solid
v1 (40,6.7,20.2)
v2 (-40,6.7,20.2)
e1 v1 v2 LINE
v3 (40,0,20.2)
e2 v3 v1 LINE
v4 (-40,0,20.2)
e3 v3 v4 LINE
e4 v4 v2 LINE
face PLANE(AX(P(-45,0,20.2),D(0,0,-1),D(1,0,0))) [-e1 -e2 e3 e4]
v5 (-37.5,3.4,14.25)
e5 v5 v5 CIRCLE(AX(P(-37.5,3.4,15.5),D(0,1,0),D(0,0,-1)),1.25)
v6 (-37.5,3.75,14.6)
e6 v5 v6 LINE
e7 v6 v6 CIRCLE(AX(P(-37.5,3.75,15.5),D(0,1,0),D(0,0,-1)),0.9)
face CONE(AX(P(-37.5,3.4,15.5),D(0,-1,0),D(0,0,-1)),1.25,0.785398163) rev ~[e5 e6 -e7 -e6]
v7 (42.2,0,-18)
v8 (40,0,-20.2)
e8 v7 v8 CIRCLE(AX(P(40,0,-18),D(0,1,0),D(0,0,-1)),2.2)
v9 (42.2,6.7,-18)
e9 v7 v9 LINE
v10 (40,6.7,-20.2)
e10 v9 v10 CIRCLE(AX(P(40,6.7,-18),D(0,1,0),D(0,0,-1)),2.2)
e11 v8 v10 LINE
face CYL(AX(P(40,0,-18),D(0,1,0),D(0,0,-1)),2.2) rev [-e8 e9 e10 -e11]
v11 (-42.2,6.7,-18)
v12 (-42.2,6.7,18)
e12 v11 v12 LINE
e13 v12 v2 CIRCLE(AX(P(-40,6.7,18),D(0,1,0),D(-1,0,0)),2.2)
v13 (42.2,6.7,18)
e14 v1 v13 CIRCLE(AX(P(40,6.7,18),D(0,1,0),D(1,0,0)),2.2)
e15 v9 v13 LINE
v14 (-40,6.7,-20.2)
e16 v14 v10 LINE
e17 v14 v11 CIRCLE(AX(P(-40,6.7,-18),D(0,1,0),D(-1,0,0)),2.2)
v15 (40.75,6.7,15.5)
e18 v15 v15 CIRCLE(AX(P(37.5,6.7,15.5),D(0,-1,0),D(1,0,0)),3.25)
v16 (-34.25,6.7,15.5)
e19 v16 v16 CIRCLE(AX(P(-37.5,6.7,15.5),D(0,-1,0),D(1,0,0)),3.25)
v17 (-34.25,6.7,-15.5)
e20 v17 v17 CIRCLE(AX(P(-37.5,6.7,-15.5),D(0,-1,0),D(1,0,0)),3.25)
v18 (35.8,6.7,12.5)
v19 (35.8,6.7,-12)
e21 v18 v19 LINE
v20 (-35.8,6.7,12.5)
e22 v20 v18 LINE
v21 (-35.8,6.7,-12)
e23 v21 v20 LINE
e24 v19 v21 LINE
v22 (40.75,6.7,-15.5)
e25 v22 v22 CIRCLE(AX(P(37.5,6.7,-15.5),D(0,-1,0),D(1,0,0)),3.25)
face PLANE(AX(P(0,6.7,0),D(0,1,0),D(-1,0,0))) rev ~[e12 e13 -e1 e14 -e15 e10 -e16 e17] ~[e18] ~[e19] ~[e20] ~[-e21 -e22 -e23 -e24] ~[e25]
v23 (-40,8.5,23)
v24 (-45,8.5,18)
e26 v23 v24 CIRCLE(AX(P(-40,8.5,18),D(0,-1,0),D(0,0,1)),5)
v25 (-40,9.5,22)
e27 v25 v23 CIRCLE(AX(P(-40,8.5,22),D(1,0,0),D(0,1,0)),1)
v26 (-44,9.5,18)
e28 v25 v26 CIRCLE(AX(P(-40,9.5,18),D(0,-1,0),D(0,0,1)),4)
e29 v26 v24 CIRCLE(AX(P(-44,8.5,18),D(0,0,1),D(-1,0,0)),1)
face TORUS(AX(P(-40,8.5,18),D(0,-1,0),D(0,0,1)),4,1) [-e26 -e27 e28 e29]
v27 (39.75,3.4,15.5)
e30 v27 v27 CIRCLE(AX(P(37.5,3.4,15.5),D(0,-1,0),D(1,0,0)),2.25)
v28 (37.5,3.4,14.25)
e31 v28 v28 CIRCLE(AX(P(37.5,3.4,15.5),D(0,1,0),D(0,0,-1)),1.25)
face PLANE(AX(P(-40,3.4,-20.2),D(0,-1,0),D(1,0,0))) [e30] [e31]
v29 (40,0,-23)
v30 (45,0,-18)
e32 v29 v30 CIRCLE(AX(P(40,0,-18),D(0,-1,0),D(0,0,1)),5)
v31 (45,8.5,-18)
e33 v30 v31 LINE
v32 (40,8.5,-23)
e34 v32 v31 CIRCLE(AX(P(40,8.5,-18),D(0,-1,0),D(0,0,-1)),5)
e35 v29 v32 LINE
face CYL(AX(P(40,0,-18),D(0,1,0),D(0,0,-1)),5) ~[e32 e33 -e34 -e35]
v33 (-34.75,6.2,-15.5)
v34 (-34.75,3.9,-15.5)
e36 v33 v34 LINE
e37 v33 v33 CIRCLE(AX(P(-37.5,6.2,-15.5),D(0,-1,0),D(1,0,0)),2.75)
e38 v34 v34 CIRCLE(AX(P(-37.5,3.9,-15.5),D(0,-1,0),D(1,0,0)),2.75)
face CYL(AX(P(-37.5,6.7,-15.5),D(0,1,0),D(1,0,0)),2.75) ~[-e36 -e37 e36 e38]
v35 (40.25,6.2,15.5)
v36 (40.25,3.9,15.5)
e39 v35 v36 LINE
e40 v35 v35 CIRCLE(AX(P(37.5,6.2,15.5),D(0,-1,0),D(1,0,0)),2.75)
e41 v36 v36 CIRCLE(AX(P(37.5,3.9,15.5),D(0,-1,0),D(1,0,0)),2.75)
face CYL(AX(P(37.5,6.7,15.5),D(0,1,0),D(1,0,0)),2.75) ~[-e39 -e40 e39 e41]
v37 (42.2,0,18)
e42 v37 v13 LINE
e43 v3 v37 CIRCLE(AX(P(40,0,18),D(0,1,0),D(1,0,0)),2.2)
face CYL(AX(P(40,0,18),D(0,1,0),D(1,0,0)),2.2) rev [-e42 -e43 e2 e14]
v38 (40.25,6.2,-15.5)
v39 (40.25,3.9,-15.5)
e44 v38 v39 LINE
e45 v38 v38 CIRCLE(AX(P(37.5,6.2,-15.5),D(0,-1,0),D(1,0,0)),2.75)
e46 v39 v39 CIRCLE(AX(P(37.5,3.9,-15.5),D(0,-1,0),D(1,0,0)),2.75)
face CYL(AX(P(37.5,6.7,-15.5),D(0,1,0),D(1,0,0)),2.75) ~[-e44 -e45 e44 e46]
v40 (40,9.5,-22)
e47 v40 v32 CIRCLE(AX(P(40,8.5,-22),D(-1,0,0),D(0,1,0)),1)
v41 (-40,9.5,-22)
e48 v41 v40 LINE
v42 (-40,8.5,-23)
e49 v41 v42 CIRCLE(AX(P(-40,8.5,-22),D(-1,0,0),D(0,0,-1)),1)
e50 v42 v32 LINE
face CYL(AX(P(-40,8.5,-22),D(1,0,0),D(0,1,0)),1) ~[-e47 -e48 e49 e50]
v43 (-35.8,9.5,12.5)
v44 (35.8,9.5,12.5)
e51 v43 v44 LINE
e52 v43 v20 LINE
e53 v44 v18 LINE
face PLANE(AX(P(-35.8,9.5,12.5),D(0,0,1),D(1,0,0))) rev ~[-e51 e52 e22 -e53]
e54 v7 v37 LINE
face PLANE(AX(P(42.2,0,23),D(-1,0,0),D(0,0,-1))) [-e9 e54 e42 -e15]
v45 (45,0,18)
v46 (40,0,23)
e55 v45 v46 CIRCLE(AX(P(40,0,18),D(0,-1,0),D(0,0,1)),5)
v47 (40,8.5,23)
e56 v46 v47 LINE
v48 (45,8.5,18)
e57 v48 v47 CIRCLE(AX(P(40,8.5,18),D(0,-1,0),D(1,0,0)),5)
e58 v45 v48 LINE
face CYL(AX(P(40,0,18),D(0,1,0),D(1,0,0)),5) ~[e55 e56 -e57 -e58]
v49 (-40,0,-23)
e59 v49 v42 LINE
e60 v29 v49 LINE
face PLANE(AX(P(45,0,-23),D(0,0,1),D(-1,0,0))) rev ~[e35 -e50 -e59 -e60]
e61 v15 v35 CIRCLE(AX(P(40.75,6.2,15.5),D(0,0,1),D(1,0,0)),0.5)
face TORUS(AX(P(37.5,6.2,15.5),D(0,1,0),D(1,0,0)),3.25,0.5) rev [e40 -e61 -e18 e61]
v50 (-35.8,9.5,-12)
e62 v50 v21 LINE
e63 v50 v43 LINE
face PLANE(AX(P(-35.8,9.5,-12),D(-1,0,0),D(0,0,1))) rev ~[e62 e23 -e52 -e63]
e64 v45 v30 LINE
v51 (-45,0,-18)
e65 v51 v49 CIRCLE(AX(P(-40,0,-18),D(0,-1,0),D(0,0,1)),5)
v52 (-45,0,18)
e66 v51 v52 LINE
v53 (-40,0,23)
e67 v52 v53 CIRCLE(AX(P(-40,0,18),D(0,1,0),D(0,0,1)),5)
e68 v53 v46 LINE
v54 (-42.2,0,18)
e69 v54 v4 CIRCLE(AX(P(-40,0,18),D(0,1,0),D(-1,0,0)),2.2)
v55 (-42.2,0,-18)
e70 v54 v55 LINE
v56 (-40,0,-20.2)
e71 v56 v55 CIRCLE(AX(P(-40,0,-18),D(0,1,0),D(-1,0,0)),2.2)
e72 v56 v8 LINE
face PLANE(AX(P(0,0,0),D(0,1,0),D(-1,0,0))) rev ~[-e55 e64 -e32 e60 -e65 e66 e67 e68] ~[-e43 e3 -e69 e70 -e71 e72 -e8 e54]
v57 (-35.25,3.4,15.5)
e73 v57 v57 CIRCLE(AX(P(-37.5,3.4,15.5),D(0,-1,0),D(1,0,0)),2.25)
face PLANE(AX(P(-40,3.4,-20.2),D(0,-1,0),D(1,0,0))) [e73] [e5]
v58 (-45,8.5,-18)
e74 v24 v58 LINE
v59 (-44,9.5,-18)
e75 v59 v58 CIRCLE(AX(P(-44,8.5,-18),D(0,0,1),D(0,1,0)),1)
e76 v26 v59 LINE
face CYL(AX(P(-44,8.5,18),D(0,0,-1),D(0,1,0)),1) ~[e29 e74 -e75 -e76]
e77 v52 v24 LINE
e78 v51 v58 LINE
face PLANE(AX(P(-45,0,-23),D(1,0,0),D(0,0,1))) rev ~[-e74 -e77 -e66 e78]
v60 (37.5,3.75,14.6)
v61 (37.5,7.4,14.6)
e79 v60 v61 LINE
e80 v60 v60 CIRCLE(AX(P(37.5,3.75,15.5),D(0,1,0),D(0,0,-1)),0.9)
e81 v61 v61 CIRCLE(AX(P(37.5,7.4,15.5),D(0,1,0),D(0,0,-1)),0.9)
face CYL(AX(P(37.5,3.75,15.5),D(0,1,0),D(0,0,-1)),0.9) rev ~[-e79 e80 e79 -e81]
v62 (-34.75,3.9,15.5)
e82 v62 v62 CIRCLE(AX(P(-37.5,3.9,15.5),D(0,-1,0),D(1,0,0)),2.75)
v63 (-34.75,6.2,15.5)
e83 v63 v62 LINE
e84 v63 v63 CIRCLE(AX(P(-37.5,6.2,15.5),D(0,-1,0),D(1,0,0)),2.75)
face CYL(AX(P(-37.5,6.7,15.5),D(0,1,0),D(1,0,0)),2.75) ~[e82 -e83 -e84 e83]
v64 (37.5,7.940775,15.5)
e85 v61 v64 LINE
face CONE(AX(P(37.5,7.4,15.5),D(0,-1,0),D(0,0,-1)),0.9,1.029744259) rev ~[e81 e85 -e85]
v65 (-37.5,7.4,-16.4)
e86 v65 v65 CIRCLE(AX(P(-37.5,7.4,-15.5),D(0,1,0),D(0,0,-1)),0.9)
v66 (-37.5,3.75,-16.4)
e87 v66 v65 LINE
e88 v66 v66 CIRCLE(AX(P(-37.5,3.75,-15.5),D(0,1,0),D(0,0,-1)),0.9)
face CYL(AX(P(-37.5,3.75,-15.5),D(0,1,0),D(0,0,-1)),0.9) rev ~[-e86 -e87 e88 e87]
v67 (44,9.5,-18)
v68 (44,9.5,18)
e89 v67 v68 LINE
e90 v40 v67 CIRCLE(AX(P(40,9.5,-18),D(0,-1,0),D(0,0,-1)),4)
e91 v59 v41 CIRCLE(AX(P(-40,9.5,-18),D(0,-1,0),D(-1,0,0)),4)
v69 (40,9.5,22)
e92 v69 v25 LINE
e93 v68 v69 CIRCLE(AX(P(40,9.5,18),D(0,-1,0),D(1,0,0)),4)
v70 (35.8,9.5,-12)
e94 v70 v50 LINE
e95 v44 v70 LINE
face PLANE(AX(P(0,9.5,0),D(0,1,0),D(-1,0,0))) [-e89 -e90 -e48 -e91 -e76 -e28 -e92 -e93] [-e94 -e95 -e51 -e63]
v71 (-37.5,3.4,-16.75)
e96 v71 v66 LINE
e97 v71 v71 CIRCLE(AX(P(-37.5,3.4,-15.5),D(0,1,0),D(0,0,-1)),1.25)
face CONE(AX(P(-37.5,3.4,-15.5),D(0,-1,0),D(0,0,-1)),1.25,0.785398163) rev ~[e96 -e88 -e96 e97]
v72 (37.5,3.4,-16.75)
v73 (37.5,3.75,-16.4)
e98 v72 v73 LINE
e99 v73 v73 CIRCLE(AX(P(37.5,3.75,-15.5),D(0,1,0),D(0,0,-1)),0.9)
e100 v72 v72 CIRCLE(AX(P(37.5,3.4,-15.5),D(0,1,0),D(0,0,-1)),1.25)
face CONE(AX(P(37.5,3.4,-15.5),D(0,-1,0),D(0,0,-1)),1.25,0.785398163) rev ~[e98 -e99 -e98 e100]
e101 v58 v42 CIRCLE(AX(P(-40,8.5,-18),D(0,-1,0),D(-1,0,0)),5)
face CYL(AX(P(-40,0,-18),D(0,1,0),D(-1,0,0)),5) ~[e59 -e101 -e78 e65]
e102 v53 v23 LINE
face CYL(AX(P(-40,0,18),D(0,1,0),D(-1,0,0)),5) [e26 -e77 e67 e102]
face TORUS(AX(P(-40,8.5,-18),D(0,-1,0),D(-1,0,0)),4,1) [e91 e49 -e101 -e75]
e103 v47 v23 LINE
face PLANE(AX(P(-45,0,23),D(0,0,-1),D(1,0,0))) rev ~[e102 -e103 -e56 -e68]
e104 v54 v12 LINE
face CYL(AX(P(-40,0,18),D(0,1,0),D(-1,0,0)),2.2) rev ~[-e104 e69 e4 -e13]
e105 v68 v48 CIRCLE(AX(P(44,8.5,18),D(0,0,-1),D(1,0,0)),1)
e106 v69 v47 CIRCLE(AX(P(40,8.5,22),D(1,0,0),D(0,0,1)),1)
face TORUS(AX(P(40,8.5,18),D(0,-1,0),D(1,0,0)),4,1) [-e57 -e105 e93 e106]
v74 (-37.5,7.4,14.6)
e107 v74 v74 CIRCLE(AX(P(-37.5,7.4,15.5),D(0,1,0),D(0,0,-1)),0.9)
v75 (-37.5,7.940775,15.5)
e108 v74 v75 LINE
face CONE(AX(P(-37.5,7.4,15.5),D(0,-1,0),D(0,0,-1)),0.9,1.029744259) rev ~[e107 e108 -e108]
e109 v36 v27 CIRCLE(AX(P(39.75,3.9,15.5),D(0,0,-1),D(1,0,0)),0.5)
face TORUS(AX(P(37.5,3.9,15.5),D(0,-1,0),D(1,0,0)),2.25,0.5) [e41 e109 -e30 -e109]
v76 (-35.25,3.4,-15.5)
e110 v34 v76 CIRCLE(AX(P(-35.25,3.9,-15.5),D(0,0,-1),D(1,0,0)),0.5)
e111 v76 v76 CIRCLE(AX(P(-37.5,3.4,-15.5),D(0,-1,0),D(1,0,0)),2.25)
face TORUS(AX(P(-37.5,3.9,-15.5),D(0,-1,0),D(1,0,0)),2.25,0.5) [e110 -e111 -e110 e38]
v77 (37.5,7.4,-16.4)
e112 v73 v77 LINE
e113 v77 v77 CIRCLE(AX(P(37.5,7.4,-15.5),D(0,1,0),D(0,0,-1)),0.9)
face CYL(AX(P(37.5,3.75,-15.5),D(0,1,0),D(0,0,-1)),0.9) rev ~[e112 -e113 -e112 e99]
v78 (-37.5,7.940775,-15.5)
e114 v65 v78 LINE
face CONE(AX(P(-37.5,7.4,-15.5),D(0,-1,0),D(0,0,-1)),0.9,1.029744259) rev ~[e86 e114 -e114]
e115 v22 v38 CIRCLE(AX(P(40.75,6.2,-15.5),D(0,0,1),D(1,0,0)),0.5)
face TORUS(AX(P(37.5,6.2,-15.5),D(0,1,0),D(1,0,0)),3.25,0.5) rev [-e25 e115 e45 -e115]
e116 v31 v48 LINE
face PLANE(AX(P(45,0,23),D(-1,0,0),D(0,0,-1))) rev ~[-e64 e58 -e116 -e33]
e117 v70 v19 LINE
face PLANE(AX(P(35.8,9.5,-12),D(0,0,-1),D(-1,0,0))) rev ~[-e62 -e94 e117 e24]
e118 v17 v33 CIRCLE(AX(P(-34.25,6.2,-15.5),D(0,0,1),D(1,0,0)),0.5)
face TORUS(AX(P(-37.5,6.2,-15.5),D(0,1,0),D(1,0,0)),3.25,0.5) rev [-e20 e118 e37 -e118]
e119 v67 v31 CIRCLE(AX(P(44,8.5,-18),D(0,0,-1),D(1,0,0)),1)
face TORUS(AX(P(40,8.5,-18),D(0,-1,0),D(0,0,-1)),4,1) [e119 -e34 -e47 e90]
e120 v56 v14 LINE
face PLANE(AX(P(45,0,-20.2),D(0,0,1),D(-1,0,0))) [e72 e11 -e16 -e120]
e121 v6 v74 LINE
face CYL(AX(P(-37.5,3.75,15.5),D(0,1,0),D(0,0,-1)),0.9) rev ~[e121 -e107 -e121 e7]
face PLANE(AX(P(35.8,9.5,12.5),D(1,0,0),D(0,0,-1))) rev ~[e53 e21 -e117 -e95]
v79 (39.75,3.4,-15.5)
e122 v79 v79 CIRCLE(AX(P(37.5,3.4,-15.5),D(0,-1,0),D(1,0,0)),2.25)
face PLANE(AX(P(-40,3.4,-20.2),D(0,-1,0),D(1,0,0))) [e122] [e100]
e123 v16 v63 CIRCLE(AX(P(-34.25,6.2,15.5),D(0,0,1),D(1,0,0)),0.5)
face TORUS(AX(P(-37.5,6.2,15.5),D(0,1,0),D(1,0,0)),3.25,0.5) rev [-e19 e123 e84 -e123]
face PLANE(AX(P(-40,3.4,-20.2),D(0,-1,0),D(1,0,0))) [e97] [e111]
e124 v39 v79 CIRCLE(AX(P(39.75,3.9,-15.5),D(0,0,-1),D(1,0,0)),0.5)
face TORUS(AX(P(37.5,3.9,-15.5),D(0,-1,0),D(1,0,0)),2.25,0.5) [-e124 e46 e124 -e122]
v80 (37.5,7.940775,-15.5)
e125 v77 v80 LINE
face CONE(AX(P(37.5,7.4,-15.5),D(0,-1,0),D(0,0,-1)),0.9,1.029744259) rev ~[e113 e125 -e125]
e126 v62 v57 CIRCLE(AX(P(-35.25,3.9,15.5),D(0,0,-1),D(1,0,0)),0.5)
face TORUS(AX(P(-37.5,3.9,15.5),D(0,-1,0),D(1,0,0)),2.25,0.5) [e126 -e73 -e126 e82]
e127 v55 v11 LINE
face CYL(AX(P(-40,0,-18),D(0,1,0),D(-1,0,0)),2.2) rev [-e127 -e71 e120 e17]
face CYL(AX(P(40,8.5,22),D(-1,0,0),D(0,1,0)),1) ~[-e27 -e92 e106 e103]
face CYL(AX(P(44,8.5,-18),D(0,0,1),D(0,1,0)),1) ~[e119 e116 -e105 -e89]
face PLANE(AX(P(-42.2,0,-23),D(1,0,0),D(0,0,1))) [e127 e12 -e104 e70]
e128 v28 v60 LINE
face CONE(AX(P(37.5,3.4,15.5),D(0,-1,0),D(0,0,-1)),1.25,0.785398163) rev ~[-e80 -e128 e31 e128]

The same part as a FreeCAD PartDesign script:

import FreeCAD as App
import Part
import Sketcher

V = App.Vector


def edges_at(feature, points):
    """Names of the edges that pass closest to the given points."""
    edges = feature.Shape.Edges
    near = lambda p: min(range(len(edges)), key=lambda i: edges[i].distToShape(Part.Vertex(*p))[0])
    return sorted({f"Edge{near(p) + 1}" for p in points})


def faces_at(feature, points):
    """Names of the faces that lie closest to the given points."""
    faces = feature.Shape.Faces
    near = lambda p: min(range(len(faces)), key=lambda i: faces[i].distToShape(Part.Vertex(*p))[0])
    return sorted({f"Face{near(p) + 1}" for p in points})


def add_polygon(sketch, points):
    """Adds a closed chain of lines whose ends are joined by coincident constraints."""
    first, n = sketch.GeometryCount, len(points)
    for a, b in zip(points, points[1:] + points[:1]):
        sketch.addGeometry(Part.LineSegment(App.Vector(*a, 0), App.Vector(*b, 0)), False)
    for i in range(n):
        sketch.addConstraint(Sketcher.Constraint("Coincident", first + i, 2, first + (i + 1) % n, 1))

doc = App.newDocument("Part")
body = doc.addObject("PartDesign::Body", "Body")

# Sketch on XZ plane
sketch1 = body.newObject("Sketcher::SketchObject", "Sketch")
sketch1.AttachmentSupport = (doc.getObject("XZ_Plane"), [""])
sketch1.MapMode = "FlatFace"
add_polygon(sketch1, [(-45, -23), (-45, 23), (45, 23), (45, -23)])  # lines 0-3
sketch1.addConstraint([
    Sketcher.Constraint("Vertical", 0),
    Sketcher.Constraint("Horizontal", 1),
    Sketcher.Constraint("Vertical", 2),
    Sketcher.Constraint("Horizontal", 3),
    Sketcher.Constraint("Symmetric", 0, 2, 2, 2, -1, 1),
    Sketcher.Constraint("DistanceX", 1, 1, 1, 2, 90.0),
    Sketcher.Constraint("DistanceY", 0, 1, 0, 2, 46.0),
])
pad1 = body.newObject("PartDesign::Pad", "Pad")
pad1.Profile = sketch1
pad1.Length = 9.5
pad1.Reversed = True
doc.recompute()

fillet = body.newObject("PartDesign::Fillet", "Fillet")
fillet.Base = (pad1, edges_at(pad1, [
    (45, 4.75, 23),
    (45, 4.75, -23),
    (-45, 4.75, 23),
    (-45, 4.75, -23),
]))
fillet.Radius = 5
doc.recompute()

thickness = body.newObject("PartDesign::Thickness", "Thickness")
thickness.Base = (fillet, faces_at(fillet, [(-13.333, 0, -7.667)]))
thickness.Value = 2.8
thickness.Reversed = True
thickness.Join = "Intersection"
doc.recompute()

fillet2 = body.newObject("PartDesign::Fillet", "Fillet001")
fillet2.Base = (thickness, edges_at(thickness, [
    (43.535, 9.5, 21.535),
    (45, 9.5, 0),
    (43.535, 9.5, -21.535),
    (0, 9.5, -23),
    (-43.535, 9.5, -21.535),
    (-45, 9.5, 0),
    (-43.535, 9.5, 21.535),
    (0, 9.5, 23),
]))
fillet2.Radius = 1

# Sketch on XZ plane
sketch2 = body.newObject("Sketcher::SketchObject", "Sketch001")
sketch2.AttachmentSupport = (doc.getObject("XZ_Plane"), [""])
sketch2.MapMode = "FlatFace"
sketch2.AttachmentOffset = App.Placement(V(0, 0, -9.5), App.Rotation())
add_polygon(sketch2, [(-36, -12), (-36, 12), (36, 12), (36, -12)])  # lines 0-3
sketch2.addConstraint([
    Sketcher.Constraint("Vertical", 0),
    Sketcher.Constraint("Horizontal", 1),
    Sketcher.Constraint("Vertical", 2),
    Sketcher.Constraint("Horizontal", 3),
    Sketcher.Constraint("DistanceX", 1, 1, 1, 2, 71.6),
    Sketcher.Constraint("DistanceY", 0, 1, 0, 2, 24.5),
    Sketcher.Constraint("DistanceY", 2, 2, -1, 1, 12.0),
    Sketcher.Constraint("DistanceX", 0, 2, -1, 1, 35.8),
])
pocket1 = body.newObject("PartDesign::Pocket", "Pocket")
pocket1.Profile = sketch2
pocket1.Length = 9.5
pocket1.Reversed = True

# Sketch on XZ plane
sketch3 = body.newObject("Sketcher::SketchObject", "Sketch002")
sketch3.AttachmentSupport = (doc.getObject("XZ_Plane"), [""])
sketch3.MapMode = "FlatFace"
sketch3.AttachmentOffset = App.Placement(V(0, 0, -6.7), App.Rotation())
sketch3.addGeometry([
    Part.Circle(V(37.5, -15.5, 0), V(0, 0, 1), 2.8),
    Part.Circle(V(-37.5, -15.5, 0), V(0, 0, 1), 2.8),
    Part.Circle(V(-37.5, 15.5, 0), V(0, 0, 1), 2.8),
    Part.Circle(V(37.5, 15.5, 0), V(0, 0, 1), 2.8),
], False)
sketch3.addConstraint([
    Sketcher.Constraint("Equal", 0, 1),
    Sketcher.Constraint("Equal", 1, 2),
    Sketcher.Constraint("Equal", 2, 3),
    Sketcher.Constraint("Symmetric", 0, 3, 2, 3, -1, 1),
    Sketcher.Constraint("Symmetric", 1, 3, 3, 3, -1, 1),
    Sketcher.Constraint("Symmetric", 0, 3, 1, 3, -2),
    Sketcher.Constraint("Diameter", 0, 5.5),
    Sketcher.Constraint("DistanceX", 1, 3, 0, 3, 75.0),
    Sketcher.Constraint("DistanceY", 1, 3, 2, 3, 31.0),
])
pad2 = body.newObject("PartDesign::Pad", "Pad001")
pad2.Profile = sketch3
pad2.Length = 3.3
doc.recompute()

fillet3 = body.newObject("PartDesign::Fillet", "Fillet002")
fillet3.Base = (pad2, edges_at(pad2, [
    (34.75, 6.7, -15.5),
    (34.75, 3.4, -15.5),
    (34.75, 3.4, 15.5),
    (34.75, 6.7, 15.5),
    (-40.25, 3.4, -15.5),
    (-40.25, 6.7, -15.5),
    (-40.25, 3.4, 15.5),
    (-40.25, 6.7, 15.5),
]))
fillet3.Radius = 0.5

# Sketch on XZ plane
sketch4 = body.newObject("Sketcher::SketchObject", "Sketch003")
sketch4.AttachmentSupport = (doc.getObject("XZ_Plane"), [""])
sketch4.MapMode = "FlatFace"
sketch4.AttachmentOffset = App.Placement(V(0, 0, -3.4), App.Rotation())
sketch4.addGeometry([
    Part.Circle(V(37.5, -15.5, 0), V(0, 0, 1), 0.9),
    Part.Circle(V(-37.5, -15.5, 0), V(0, 0, 1), 0.9),
    Part.Circle(V(-37.5, 15.5, 0), V(0, 0, 1), 0.9),
    Part.Circle(V(37.5, 15.5, 0), V(0, 0, 1), 0.9),
], False)
sketch4.addConstraint([
    Sketcher.Constraint("Equal", 0, 1),
    Sketcher.Constraint("Equal", 1, 2),
    Sketcher.Constraint("Equal", 2, 3),
    Sketcher.Constraint("Symmetric", 0, 3, 2, 3, -1, 1),
    Sketcher.Constraint("Symmetric", 1, 3, 3, 3, -1, 1),
    Sketcher.Constraint("Symmetric", 0, 3, 1, 3, -2),
    Sketcher.Constraint("Diameter", 0, 1.8),
    Sketcher.Constraint("DistanceX", 1, 3, 0, 3, 75.0),
    Sketcher.Constraint("DistanceY", 1, 3, 2, 3, 31.0),
])
doc.recompute()
hole = body.newObject("PartDesign::Hole", "Hole")
hole.Profile = sketch4
hole.ThreadType = "None"
hole.Diameter = 1.8
hole.DepthType = "Dimension"
hole.Depth = 4
hole.DrillPoint = "Angled"
hole.DrillPointAngle = 118
hole.HoleCutType = "Countersink"
hole.HoleCutDiameter = 2.5
hole.HoleCutCountersinkAngle = 90

doc.recompute()
